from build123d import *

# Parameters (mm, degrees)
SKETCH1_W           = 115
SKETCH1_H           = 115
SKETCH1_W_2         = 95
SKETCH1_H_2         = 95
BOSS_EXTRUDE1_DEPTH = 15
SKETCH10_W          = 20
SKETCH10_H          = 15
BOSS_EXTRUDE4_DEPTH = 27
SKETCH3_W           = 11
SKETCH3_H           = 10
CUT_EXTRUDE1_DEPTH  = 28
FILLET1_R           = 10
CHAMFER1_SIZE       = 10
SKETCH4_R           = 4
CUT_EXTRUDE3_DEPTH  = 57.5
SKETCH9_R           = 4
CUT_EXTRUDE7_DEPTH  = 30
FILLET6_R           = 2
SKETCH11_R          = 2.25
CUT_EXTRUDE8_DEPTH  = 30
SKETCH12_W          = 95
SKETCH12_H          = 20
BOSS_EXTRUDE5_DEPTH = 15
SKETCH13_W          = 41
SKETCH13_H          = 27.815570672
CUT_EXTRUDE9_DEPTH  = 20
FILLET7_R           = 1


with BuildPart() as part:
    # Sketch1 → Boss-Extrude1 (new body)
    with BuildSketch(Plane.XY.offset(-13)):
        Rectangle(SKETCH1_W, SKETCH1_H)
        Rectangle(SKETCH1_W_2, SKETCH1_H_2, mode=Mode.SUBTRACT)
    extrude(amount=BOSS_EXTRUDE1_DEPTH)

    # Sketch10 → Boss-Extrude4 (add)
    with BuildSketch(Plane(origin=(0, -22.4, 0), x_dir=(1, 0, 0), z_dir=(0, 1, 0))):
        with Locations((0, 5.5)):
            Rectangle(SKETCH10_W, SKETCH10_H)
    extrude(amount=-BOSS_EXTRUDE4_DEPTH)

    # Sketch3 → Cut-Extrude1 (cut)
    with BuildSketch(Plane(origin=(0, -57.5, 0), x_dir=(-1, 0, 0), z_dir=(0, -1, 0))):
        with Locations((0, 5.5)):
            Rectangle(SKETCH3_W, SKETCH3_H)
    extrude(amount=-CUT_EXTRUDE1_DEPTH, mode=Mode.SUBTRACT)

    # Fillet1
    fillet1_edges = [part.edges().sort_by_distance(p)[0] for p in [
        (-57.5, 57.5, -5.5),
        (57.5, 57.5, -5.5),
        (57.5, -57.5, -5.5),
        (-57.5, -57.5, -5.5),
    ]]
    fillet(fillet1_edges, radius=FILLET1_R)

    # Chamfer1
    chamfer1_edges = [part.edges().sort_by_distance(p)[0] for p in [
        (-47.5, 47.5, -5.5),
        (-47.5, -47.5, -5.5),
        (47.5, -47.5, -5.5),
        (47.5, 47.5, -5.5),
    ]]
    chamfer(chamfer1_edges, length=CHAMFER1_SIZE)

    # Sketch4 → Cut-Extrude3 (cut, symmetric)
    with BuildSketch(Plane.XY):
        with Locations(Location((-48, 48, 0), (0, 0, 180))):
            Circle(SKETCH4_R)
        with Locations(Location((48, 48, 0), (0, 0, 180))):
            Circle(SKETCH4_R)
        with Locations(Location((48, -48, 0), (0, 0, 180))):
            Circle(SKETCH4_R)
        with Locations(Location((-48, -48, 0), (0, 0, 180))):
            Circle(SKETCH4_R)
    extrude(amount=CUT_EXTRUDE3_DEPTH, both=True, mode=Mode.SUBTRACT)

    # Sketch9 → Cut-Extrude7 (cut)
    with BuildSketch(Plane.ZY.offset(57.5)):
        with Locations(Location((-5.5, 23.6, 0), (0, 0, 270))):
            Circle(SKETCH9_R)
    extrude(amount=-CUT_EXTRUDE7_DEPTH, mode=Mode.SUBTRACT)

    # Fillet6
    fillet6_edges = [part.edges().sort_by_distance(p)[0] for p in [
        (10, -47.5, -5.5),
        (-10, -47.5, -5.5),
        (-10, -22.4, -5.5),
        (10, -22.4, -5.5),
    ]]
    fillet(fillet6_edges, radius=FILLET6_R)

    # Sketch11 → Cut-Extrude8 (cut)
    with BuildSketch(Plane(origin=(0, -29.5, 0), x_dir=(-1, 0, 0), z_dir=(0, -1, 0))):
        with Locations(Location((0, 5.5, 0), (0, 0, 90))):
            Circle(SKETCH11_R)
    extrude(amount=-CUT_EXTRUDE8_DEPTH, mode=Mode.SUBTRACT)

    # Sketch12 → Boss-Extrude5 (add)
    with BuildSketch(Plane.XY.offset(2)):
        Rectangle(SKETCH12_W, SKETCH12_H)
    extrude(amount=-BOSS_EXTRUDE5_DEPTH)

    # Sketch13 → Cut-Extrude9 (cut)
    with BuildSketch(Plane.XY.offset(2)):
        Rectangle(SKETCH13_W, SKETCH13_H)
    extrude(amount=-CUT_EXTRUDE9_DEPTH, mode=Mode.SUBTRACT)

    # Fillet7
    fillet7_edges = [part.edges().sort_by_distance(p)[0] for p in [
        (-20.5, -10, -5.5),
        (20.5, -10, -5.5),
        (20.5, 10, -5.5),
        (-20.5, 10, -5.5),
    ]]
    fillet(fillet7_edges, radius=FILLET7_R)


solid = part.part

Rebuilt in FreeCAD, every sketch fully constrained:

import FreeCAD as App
import Part
import Sketcher


def edges_at(feature, points):
    """Names of the edges that pass closest to the given points."""
    edges = feature.Shape.Edges
    near = lambda p: min(range(len(edges)), key=lambda i: edges[i].distToShape(Part.Vertex(*p))[0])
    return sorted({f"Edge{near(p) + 1}" for p in points})

doc = App.newDocument("Part")
body = doc.addObject("PartDesign::Body", "Body")

sketch1 = body.newObject("Sketcher::SketchObject", "Sketch")
sketch1.AttachmentSupport = (doc.getObject("XY_Plane"), [""])
sketch1.MapMode = "FlatFace"
sketch1.AttachmentOffset = App.Placement(App.Vector(0, 0, -13), App.Rotation())
sketch1.addGeometry([
    Part.LineSegment(App.Vector(-58, 58, 0), App.Vector(-58, -58, 0)),
    Part.LineSegment(App.Vector(-58, -58, 0), App.Vector(58, -58, 0)),
    Part.LineSegment(App.Vector(58, -58, 0), App.Vector(58, 58, 0)),
    Part.LineSegment(App.Vector(58, 58, 0), App.Vector(-58, 58, 0)),
    Part.LineSegment(App.Vector(48, -48, 0), App.Vector(-48, -48, 0)),
    Part.LineSegment(App.Vector(-48, -48, 0), App.Vector(-48, 48, 0)),
    Part.LineSegment(App.Vector(-48, 48, 0), App.Vector(48, 48, 0)),
    Part.LineSegment(App.Vector(48, 48, 0), App.Vector(48, -48, 0)),
], False)
sketch1.addConstraint([
    Sketcher.Constraint("Coincident", 0, 2, 1, 1),
    Sketcher.Constraint("Coincident", 1, 2, 2, 1),
    Sketcher.Constraint("Coincident", 2, 2, 3, 1),
    Sketcher.Constraint("Coincident", 3, 2, 0, 1),
    Sketcher.Constraint("Coincident", 4, 2, 5, 1),
    Sketcher.Constraint("Coincident", 5, 2, 6, 1),
    Sketcher.Constraint("Coincident", 6, 2, 7, 1),
    Sketcher.Constraint("Coincident", 7, 2, 4, 1),
    Sketcher.Constraint("Vertical", 0),
    Sketcher.Constraint("Horizontal", 1),
    Sketcher.Constraint("Vertical", 2),
    Sketcher.Constraint("Horizontal", 3),
    Sketcher.Constraint("Horizontal", 4),
    Sketcher.Constraint("Vertical", 5),
    Sketcher.Constraint("Horizontal", 6),
    Sketcher.Constraint("Vertical", 7),
    Sketcher.Constraint("Symmetric", 0, 2, 2, 2, -1, 1),
    Sketcher.Constraint("Symmetric", 4, 2, 6, 2, -1, 1),
    Sketcher.Constraint("Equal", 3, 0),
    Sketcher.Constraint("Equal", 6, 5),
    Sketcher.Constraint("DistanceX", 1, 1, 1, 2, 115.0),
    Sketcher.Constraint("DistanceX", 4, 2, 4, 1, 95.0),
])
pad1 = body.newObject("PartDesign::Pad", "Pad")
pad1.Profile = sketch1
pad1.Length = 15

sketch2 = body.newObject("Sketcher::SketchObject", "Sketch001")
sketch2.AttachmentSupport = (doc.getObject("XZ_Plane"), [""])
sketch2.MapMode = "FlatFace"
sketch2.AttachmentOffset = App.Placement(App.Vector(0, 0, 22.4), App.Rotation())
sketch2.addGeometry([
    Part.LineSegment(App.Vector(-10, -13, 0), App.Vector(-10, 2, 0)),
    Part.LineSegment(App.Vector(-10, 2, 0), App.Vector(10, 2, 0)),
    Part.LineSegment(App.Vector(10, 2, 0), App.Vector(10, -13, 0)),
    Part.LineSegment(App.Vector(10, -13, 0), App.Vector(-10, -13, 0)),
], False)
sketch2.addConstraint([
    Sketcher.Constraint("Coincident", 0, 2, 1, 1),
    Sketcher.Constraint("Coincident", 1, 2, 2, 1),
    Sketcher.Constraint("Coincident", 2, 2, 3, 1),
    Sketcher.Constraint("Coincident", 3, 2, 0, 1),
    Sketcher.Constraint("Vertical", 0),
    Sketcher.Constraint("Horizontal", 1),
    Sketcher.Constraint("Vertical", 2),
    Sketcher.Constraint("Horizontal", 3),
    Sketcher.Constraint("DistanceX", 1, 1, 1, 2, 20.0),
    Sketcher.Constraint("DistanceY", 0, 1, 0, 2, 15.0),
    Sketcher.Constraint("DistanceX", 0, 2, -1, 1, 10.0),
    Sketcher.Constraint("DistanceY", -1, 1, 0, 2, 2.0),
])
pad2 = body.newObject("PartDesign::Pad", "Pad001")
pad2.Profile = sketch2
pad2.Length = 27

sketch3 = body.newObject("Sketcher::SketchObject", "Sketch002")
sketch3.AttachmentSupport = (doc.getObject("XZ_Plane"), [""])
sketch3.MapMode = "FlatFace"
sketch3.AttachmentOffset = App.Placement(App.Vector(0, 0, 57.5), App.Rotation())
sketch3.addGeometry([
    Part.LineSegment(App.Vector(6, -10, 0), App.Vector(6, 0, 0)),
    Part.LineSegment(App.Vector(6, 0, 0), App.Vector(-6, 0, 0)),
    Part.LineSegment(App.Vector(-6, 0, 0), App.Vector(-6, -10, 0)),
    Part.LineSegment(App.Vector(-6, -10, 0), App.Vector(6, -10, 0)),
], False)
sketch3.addConstraint([
    Sketcher.Constraint("Coincident", 0, 2, 1, 1),
    Sketcher.Constraint("Coincident", 1, 2, 2, 1),
    Sketcher.Constraint("Coincident", 2, 2, 3, 1),
    Sketcher.Constraint("Coincident", 3, 2, 0, 1),
    Sketcher.Constraint("Vertical", 0),
    Sketcher.Constraint("Horizontal", 1),
    Sketcher.Constraint("Vertical", 2),
    Sketcher.Constraint("Horizontal", 3),
    Sketcher.Constraint("DistanceX", 1, 2, 1, 1, 11.0),
    Sketcher.Constraint("DistanceY", 0, 1, 0, 2, 10.0),
    Sketcher.Constraint("DistanceX", -1, 1, 0, 2, 5.5),
    Sketcher.Constraint("DistanceY", 0, 2, -1, 1, 0.5),
])
pocket1 = body.newObject("PartDesign::Pocket", "Pocket")
pocket1.Profile = sketch3
pocket1.Length = 28
doc.recompute()

fillet = body.newObject("PartDesign::Fillet", "Fillet")
fillet.Base = (pocket1, edges_at(pocket1, [
    (-57.5, 57.5, -5.5),
    (57.5, 57.5, -5.5),
    (57.5, -57.5, -5.5),
    (-57.5, -57.5, -5.5),
]))
fillet.Radius = 10
doc.recompute()

chamfer = body.newObject("PartDesign::Chamfer", "Chamfer")
chamfer.Base = (fillet, edges_at(fillet, [
    (-47.5, 47.5, -5.5),
    (-47.5, -47.5, -5.5),
    (47.5, -47.5, -5.5),
    (47.5, 47.5, -5.5),
]))
chamfer.Size = 10

sketch4 = body.newObject("Sketcher::SketchObject", "Sketch003")
sketch4.AttachmentSupport = (doc.getObject("XY_Plane"), [""])
sketch4.MapMode = "FlatFace"
sketch4.addGeometry([
    Part.Circle(App.Vector(-48, 48, 0), App.Vector(0, 0, 1), 4),
    Part.Circle(App.Vector(48, 48, 0), App.Vector(0, 0, 1), 4),
    Part.Circle(App.Vector(48, -48, 0), App.Vector(0, 0, 1), 4),
    Part.Circle(App.Vector(-48, -48, 0), App.Vector(0, 0, 1), 4),
], False)
sketch4.addConstraint([
    Sketcher.Constraint("Equal", 0, 1),
    Sketcher.Constraint("Equal", 1, 2),
    Sketcher.Constraint("Equal", 2, 3),
    Sketcher.Constraint("Symmetric", 0, 3, 2, 3, -1, 1),
    Sketcher.Constraint("Symmetric", 1, 3, 3, 3, -1, 1),
    Sketcher.Constraint("Symmetric", 0, 3, 1, 3, -2),
    Sketcher.Constraint("Diameter", 0, 8.0),
    Sketcher.Constraint("DistanceX", 0, 3, -1, 1, 48.0),
    Sketcher.Constraint("DistanceY", -1, 1, 0, 3, 48.0),
])
pocket2 = body.newObject("PartDesign::Pocket", "Pocket001")
pocket2.Profile = sketch4
pocket2.Length = 115
pocket2.Midplane = True

sketch5 = body.newObject("Sketcher::SketchObject", "Sketch004")
sketch5.AttachmentSupport = (doc.getObject("YZ_Plane"), [""])
sketch5.MapMode = "FlatFace"
sketch5.AttachmentOffset = App.Placement(App.Vector(0, 0, -57.5), App.Rotation())
sketch5.addGeometry(Part.Circle(App.Vector(23.6, -5.5, 0), App.Vector(0, 0, 1), 4), False)
sketch5.addConstraint([
    Sketcher.Constraint("Diameter", 0, 8.0),
    Sketcher.Constraint("DistanceX", -1, 1, 0, 3, 23.6),
    Sketcher.Constraint("DistanceY", 0, 3, -1, 1, 5.5),
])
pocket3 = body.newObject("PartDesign::Pocket", "Pocket002")
pocket3.Profile = sketch5
pocket3.Length = 30
pocket3.Reversed = True
doc.recompute()

fillet2 = body.newObject("PartDesign::Fillet", "Fillet001")
fillet2.Base = (pocket3, edges_at(pocket3, [
    (10, -47.5, -5.5),
    (-10, -47.5, -5.5),
    (-10, -22.4, -5.5),
    (10, -22.4, -5.5),
]))
fillet2.Radius = 2

sketch6 = body.newObject("Sketcher::SketchObject", "Sketch005")
sketch6.AttachmentSupport = (doc.getObject("XZ_Plane"), [""])
sketch6.MapMode = "FlatFace"
sketch6.AttachmentOffset = App.Placement(App.Vector(0, 0, 29.5), App.Rotation())
sketch6.addGeometry(Part.Circle(App.Vector(0, -5.5, 0), App.Vector(0, 0, 1), 2.2), False)
sketch6.addConstraint([
    Sketcher.Constraint("PointOnObject", 0, 3, -2),
    Sketcher.Constraint("Diameter", 0, 4.5),
    Sketcher.Constraint("DistanceY", 0, 3, -1, 1, 5.5),
])
pocket4 = body.newObject("PartDesign::Pocket", "Pocket003")
pocket4.Profile = sketch6
pocket4.Length = 30

sketch7 = body.newObject("Sketcher::SketchObject", "Sketch006")
sketch7.AttachmentSupport = (doc.getObject("XY_Plane"), [""])
sketch7.MapMode = "FlatFace"
sketch7.AttachmentOffset = App.Placement(App.Vector(0, 0, 2), App.Rotation())
sketch7.addGeometry([
    Part.LineSegment(App.Vector(-48, 10, 0), App.Vector(-48, -10, 0)),
    Part.LineSegment(App.Vector(-48, -10, 0), App.Vector(48, -10, 0)),
    Part.LineSegment(App.Vector(48, -10, 0), App.Vector(48, 10, 0)),
    Part.LineSegment(App.Vector(48, 10, 0), App.Vector(-48, 10, 0)),
], False)
sketch7.addConstraint([
    Sketcher.Constraint("Coincident", 0, 2, 1, 1),
    Sketcher.Constraint("Coincident", 1, 2, 2, 1),
    Sketcher.Constraint("Coincident", 2, 2, 3, 1),
    Sketcher.Constraint("Coincident", 3, 2, 0, 1),
    Sketcher.Constraint("Vertical", 0),
    Sketcher.Constraint("Horizontal", 1),
    Sketcher.Constraint("Vertical", 2),
    Sketcher.Constraint("Horizontal", 3),
    Sketcher.Constraint("Symmetric", 0, 2, 2, 2, -1, 1),
    Sketcher.Constraint("DistanceX", 1, 1, 1, 2, 95.0),
    Sketcher.Constraint("DistanceY", 0, 2, 0, 1, 20.0),
])
pad3 = body.newObject("PartDesign::Pad", "Pad002")
pad3.Profile = sketch7
pad3.Length = 15
pad3.Reversed = True

sketch8 = body.newObject("Sketcher::SketchObject", "Sketch007")
sketch8.AttachmentSupport = (doc.getObject("XY_Plane"), [""])
sketch8.MapMode = "FlatFace"
sketch8.AttachmentOffset = App.Placement(App.Vector(0, 0, 2), App.Rotation())
sketch8.addGeometry([
    Part.LineSegment(App.Vector(-20, 14, 0), App.Vector(-20, -14, 0)),
    Part.LineSegment(App.Vector(-20, -14, 0), App.Vector(20, -14, 0)),
    Part.LineSegment(App.Vector(20, -14, 0), App.Vector(20, 14, 0)),
    Part.LineSegment(App.Vector(20, 14, 0), App.Vector(-20, 14, 0)),
], False)
sketch8.addConstraint([
    Sketcher.Constraint("Coincident", 0, 2, 1, 1),
    Sketcher.Constraint("Coincident", 1, 2, 2, 1),
    Sketcher.Constraint("Coincident", 2, 2, 3, 1),
    Sketcher.Constraint("Coincident", 3, 2, 0, 1),
    Sketcher.Constraint("Vertical", 0),
    Sketcher.Constraint("Horizontal", 1),
    Sketcher.Constraint("Vertical", 2),
    Sketcher.Constraint("Horizontal", 3),
    Sketcher.Constraint("Symmetric", 0, 2, 2, 2, -1, 1),
    Sketcher.Constraint("DistanceX", 1, 1, 1, 2, 41.0),
    Sketcher.Constraint("DistanceY", 0, 2, 0, 1, 27.815571),
])
pocket5 = body.newObject("PartDesign::Pocket", "Pocket004")
pocket5.Profile = sketch8
pocket5.Length = 20
doc.recompute()

fillet3 = body.newObject("PartDesign::Fillet", "Fillet002")
fillet3.Base = (pocket5, edges_at(pocket5, [
    (-20.5, -10, -5.5),
    (20.5, -10, -5.5),
    (20.5, 10, -5.5),
    (-20.5, 10, -5.5),
]))
fillet3.Radius = 1

doc.recompute()
